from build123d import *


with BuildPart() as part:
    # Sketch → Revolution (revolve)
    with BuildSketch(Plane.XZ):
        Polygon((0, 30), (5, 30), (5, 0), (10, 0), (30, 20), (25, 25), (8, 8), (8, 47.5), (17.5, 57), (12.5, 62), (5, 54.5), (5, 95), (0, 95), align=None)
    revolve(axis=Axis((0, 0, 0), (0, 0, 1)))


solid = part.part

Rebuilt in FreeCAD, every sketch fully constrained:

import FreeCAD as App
import Part
import Sketcher

V = App.Vector
Q = App.Units.Quantity


def add_polygon(sketch, points):
    """Adds a closed chain of lines whose ends are joined by coincident constraints."""
    first, n = sketch.GeometryCount, len(points)
    for a, b in zip(points, points[1:] + points[:1]):
        sketch.addGeometry(Part.LineSegment(App.Vector(*a, 0), App.Vector(*b, 0)), False)
    for i in range(n):
        sketch.addConstraint(Sketcher.Constraint("Coincident", first + i, 2, first + (i + 1) % n, 1))

doc = App.newDocument("Part")
body = doc.addObject("PartDesign::Body", "Body")

# Sketch on XZ plane
sketch1 = doc.addObject("Sketcher::SketchObject", "Sketch")
body.addObject(sketch1)
sketch1.AttachmentSupport = (doc.XZ_Plane, [""])
sketch1.MapMode = "FlatFace"
add_polygon(sketch1, [(0, 30), (5, 30), (5, 0), (10, 0), (30, 20), (25, 25), (8, 8), (8, 48), (18, 57), (12, 62), (5, 54), (5, 95), (0, 95)])  # lines 0-12
sketch1.addConstraint([
    Sketcher.Constraint("Horizontal", 0),
    Sketcher.Constraint("Vertical", 1),
    Sketcher.Constraint("Horizontal", 2),
    Sketcher.Constraint("Vertical", 6),
    Sketcher.Constraint("Vertical", 10),
    Sketcher.Constraint("Horizontal", 11),
    Sketcher.Constraint("Vertical", 12),
    Sketcher.Constraint("PointOnObject", 1, 2, -1),
    Sketcher.Constraint("PointOnObject", 11, 2, -2),
    Sketcher.Constraint("Perpendicular", 3, 4),
    Sketcher.Constraint("Perpendicular", 4, 5),
    Sketcher.Constraint("Parallel", 5, 7),
    Sketcher.Constraint("Perpendicular", 7, 8),
    Sketcher.Constraint("Perpendicular", 8, 9),
    Sketcher.Constraint("Vertical", 1, 2, 9, 2),
    Sketcher.Constraint("Equal", 0, 2),
    Sketcher.Constraint("Equal", 4, 8),
    Sketcher.Constraint("DistanceX", 0, 1, 0, 2, 5.0),
    Sketcher.Constraint("DistanceY", 1, 2, 1, 1, 30.0),
    Sketcher.Constraint("DistanceY", 12, 2, 12, 1, 65.0),
    Sketcher.Constraint("Angle", 3, Q("45 deg")),
    Sketcher.Constraint("DistanceY", 6, 1, 6, 2, 39.5),
    Sketcher.Constraint("DistanceY", 10, 1, 10, 2, 40.5),
    Sketcher.Constraint("DistanceX", -1, 1, 3, 2, 30.0),
    Sketcher.Constraint("DistanceX", -1, 1, 5, 2, 8.0),
    Sketcher.Constraint("DistanceY", -1, 1, 7, 2, 57.0),
])
revolution = doc.addObject("PartDesign::Revolution", "Revolution")
body.addObject(revolution)
revolution.Profile = sketch1
revolution.ReferenceAxis = (sketch1, ["V_Axis"])
revolution.Angle = 360

doc.recompute()
